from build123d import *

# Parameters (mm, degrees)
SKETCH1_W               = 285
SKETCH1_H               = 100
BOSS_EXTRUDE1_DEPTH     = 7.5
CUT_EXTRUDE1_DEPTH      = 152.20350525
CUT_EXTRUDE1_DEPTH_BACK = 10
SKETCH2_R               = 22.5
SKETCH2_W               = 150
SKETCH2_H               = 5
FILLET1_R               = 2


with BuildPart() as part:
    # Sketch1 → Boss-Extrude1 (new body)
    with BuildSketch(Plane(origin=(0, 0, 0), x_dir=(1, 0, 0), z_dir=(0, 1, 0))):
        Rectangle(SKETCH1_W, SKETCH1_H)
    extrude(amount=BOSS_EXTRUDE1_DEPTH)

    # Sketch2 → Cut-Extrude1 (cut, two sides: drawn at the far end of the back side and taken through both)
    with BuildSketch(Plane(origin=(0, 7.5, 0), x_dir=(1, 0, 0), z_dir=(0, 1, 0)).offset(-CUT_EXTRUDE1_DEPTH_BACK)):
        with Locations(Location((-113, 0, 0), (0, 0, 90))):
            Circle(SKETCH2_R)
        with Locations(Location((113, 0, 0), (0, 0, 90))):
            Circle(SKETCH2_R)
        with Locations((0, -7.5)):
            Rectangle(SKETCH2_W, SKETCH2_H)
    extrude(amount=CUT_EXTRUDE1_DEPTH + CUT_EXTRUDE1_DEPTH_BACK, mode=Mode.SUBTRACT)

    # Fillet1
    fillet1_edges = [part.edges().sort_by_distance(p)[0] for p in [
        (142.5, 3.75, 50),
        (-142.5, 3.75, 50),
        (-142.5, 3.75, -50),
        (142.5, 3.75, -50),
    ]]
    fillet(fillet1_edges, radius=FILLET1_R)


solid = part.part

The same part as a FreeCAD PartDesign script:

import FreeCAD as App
import Part
import Sketcher
from FreeCAD import Vector


def edges_at(feature, points):
    """Names of the edges that pass closest to the given points."""
    edges = feature.Shape.Edges
    near = lambda p: min(range(len(edges)), key=lambda i: edges[i].distToShape(Part.Vertex(*p))[0])
    return sorted({f"Edge{near(p) + 1}" for p in points})


def add_polygon(sketch, points):
    """Adds a closed chain of lines whose ends are joined by coincident constraints."""
    first, n = sketch.GeometryCount, len(points)
    for a, b in zip(points, points[1:] + points[:1]):
        sketch.addGeometry(Part.LineSegment(App.Vector(*a, 0), App.Vector(*b, 0)), False)
    for i in range(n):
        sketch.addConstraint(Sketcher.Constraint("Coincident", first + i, 2, first + (i + 1) % n, 1))

doc = App.newDocument("Part")
body = doc.addObject("PartDesign::Body", "Body")

# Sketch on XZ plane
sketch1 = body.newObject("Sketcher::SketchObject", "Sketch")
sketch1.AttachmentSupport = (doc.getObject("XZ_Plane"), [""])
sketch1.MapMode = "FlatFace"
add_polygon(sketch1, [(-142, -50), (-142, 50), (142, 50), (142, -50)])  # lines 0-3
sketch1.addConstraint([
    Sketcher.Constraint("Vertical", 0),
    Sketcher.Constraint("Horizontal", 1),
    Sketcher.Constraint("Vertical", 2),
    Sketcher.Constraint("Horizontal", 3),
    Sketcher.Constraint("Symmetric", 0, 2, 2, 2, -1, 1),
    Sketcher.Constraint("DistanceX", 1, 1, 1, 2, 285.0),
    Sketcher.Constraint("DistanceY", 0, 1, 0, 2, 100.0),
])
pad1 = body.newObject("PartDesign::Pad", "Pad")
pad1.Profile = sketch1
pad1.Length = 7.5
pad1.Reversed = True

# Sketch on XZ plane
sketch2 = body.newObject("Sketcher::SketchObject", "Sketch001")
sketch2.AttachmentSupport = (doc.getObject("XZ_Plane"), [""])
sketch2.MapMode = "FlatFace"
sketch2.AttachmentOffset = App.Placement(Vector(0, 0, -7.5), App.Rotation())
sketch2.addGeometry(Part.Circle(Vector(-113, 0, 0), Vector(0, 0, 1), 22), False)  # 0
sketch2.addGeometry(Part.Circle(Vector(113, 0, 0), Vector(0, 0, 1), 22), False)  # 1
add_polygon(sketch2, [(-75, 5), (-75, 10), (75, 10), (75, 5)])  # lines 2-5
sketch2.addConstraint([
    Sketcher.Constraint("Vertical", 2),
    Sketcher.Constraint("Horizontal", 3),
    Sketcher.Constraint("Vertical", 4),
    Sketcher.Constraint("Horizontal", 5),
    Sketcher.Constraint("Equal", 0, 1),
    Sketcher.Constraint("Symmetric", 0, 3, 1, 3, -1, 1),
    Sketcher.Constraint("PointOnObject", 0, 3, -1),
    Sketcher.Constraint("Diameter", 0, 45.0),
    Sketcher.Constraint("DistanceX", 3, 1, 3, 2, 150.0),
    Sketcher.Constraint("DistanceY", 2, 1, 2, 2, 5.0),
    Sketcher.Constraint("DistanceX", 0, 3, -1, 1, 113.0),
    Sketcher.Constraint("DistanceX", 2, 2, -1, 1, 75.0),
    Sketcher.Constraint("DistanceY", -1, 1, 2, 2, 10.0),
])
pocket1 = body.newObject("PartDesign::Pocket", "Pocket")
pocket1.Profile = sketch2
pocket1.Type = "ThroughAll"
pocket1.Midplane = True
doc.recompute()

fillet = body.newObject("PartDesign::Fillet", "Fillet")
fillet.Base = (pocket1, edges_at(pocket1, [
    (142.5, 3.75, 50),
    (-142.5, 3.75, 50),
    (-142.5, 3.75, -50),
    (142.5, 3.75, -50),
]))
fillet.Radius = 2

doc.recompute()
